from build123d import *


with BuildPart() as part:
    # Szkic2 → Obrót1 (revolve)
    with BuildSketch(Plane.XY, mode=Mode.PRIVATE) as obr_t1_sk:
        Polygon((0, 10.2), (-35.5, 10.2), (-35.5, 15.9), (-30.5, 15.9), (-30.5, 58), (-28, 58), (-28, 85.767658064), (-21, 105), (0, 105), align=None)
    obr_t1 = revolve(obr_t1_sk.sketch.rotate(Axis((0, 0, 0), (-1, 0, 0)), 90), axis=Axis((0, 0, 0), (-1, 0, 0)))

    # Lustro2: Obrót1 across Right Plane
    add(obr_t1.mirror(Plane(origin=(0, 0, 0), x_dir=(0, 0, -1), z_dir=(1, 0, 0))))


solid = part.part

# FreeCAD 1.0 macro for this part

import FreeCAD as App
import Part
import Sketcher
from FreeCAD import Vector
Q = App.Units.Quantity

doc = App.newDocument("Part")
body = doc.addObject("PartDesign::Body", "Body")

sketch1 = body.newObject("Sketcher::SketchObject", "Sketch")
sketch1.AttachmentSupport = (doc.getObject("XY_Plane"), [""])
sketch1.MapMode = "FlatFace"
sketch1.addGeometry([
    Part.LineSegment(Vector(-35.5, 10.2, 0), Vector(0, 10.2, 0)),
    Part.LineSegment(Vector(0, 10.2, 0), Vector(0, 105, 0)),
    Part.LineSegment(Vector(0, 105, 0), Vector(-21, 105, 0)),
    Part.LineSegment(Vector(-21, 105, 0), Vector(-28, 85.767658, 0)),
    Part.LineSegment(Vector(-28, 85.767658, 0), Vector(-28, 58, 0)),
    Part.LineSegment(Vector(-28, 58, 0), Vector(-30.5, 58, 0)),
    Part.LineSegment(Vector(-30.5, 58, 0), Vector(-30.5, 15.9, 0)),
    Part.LineSegment(Vector(-30.5, 15.9, 0), Vector(-35.5, 15.9, 0)),
    Part.LineSegment(Vector(-35.5, 15.9, 0), Vector(-35.5, 10.2, 0)),
], False)
sketch1.addConstraint([
    Sketcher.Constraint("Coincident", 0, 2, 1, 1),
    Sketcher.Constraint("Coincident", 1, 2, 2, 1),
    Sketcher.Constraint("Coincident", 2, 2, 3, 1),
    Sketcher.Constraint("Coincident", 3, 2, 4, 1),
    Sketcher.Constraint("Coincident", 4, 2, 5, 1),
    Sketcher.Constraint("Coincident", 5, 2, 6, 1),
    Sketcher.Constraint("Coincident", 6, 2, 7, 1),
    Sketcher.Constraint("Coincident", 7, 2, 8, 1),
    Sketcher.Constraint("Coincident", 8, 2, 0, 1),
    Sketcher.Constraint("Horizontal", 0),
    Sketcher.Constraint("Vertical", 1),
    Sketcher.Constraint("Horizontal", 2),
    Sketcher.Constraint("Vertical", 4),
    Sketcher.Constraint("Horizontal", 5),
    Sketcher.Constraint("Vertical", 6),
    Sketcher.Constraint("Horizontal", 7),
    Sketcher.Constraint("Vertical", 8),
    Sketcher.Constraint("PointOnObject", 0, 2, -2),
    Sketcher.Constraint("DistanceX", 2, 2, 2, 1, 21.0),
    Sketcher.Constraint("DistanceX", 7, 2, 7, 1, 5.0),
    Sketcher.Constraint("Angle", 3, Q("-110 deg")),
    Sketcher.Constraint("DistanceX", 0, 1, 0, 2, 35.5),
    Sketcher.Constraint("DistanceX", 5, 2, 5, 1, 2.5),
    Sketcher.Constraint("DistanceY", 1, 1, 1, 2, 94.8),
    Sketcher.Constraint("DistanceY", 6, 2, 6, 1, 42.1),
    Sketcher.Constraint("DistanceY", 8, 2, 8, 1, 5.7),
    Sketcher.Constraint("DistanceY", -1, 1, 1, 2, 105.0),
])
revolution = body.newObject("PartDesign::Revolution", "Revolution")
revolution.Profile = sketch1
revolution.ReferenceAxis = (sketch1, ["H_Axis"])
revolution.Angle = 360
doc.recompute()

mirrored = body.newObject("PartDesign::Mirrored", "Mirrored")
mirrored.Originals = [revolution]
mirrored.MirrorPlane = (doc.getObject("YZ_Plane"), [""])
body.Tip = mirrored

doc.recompute()
